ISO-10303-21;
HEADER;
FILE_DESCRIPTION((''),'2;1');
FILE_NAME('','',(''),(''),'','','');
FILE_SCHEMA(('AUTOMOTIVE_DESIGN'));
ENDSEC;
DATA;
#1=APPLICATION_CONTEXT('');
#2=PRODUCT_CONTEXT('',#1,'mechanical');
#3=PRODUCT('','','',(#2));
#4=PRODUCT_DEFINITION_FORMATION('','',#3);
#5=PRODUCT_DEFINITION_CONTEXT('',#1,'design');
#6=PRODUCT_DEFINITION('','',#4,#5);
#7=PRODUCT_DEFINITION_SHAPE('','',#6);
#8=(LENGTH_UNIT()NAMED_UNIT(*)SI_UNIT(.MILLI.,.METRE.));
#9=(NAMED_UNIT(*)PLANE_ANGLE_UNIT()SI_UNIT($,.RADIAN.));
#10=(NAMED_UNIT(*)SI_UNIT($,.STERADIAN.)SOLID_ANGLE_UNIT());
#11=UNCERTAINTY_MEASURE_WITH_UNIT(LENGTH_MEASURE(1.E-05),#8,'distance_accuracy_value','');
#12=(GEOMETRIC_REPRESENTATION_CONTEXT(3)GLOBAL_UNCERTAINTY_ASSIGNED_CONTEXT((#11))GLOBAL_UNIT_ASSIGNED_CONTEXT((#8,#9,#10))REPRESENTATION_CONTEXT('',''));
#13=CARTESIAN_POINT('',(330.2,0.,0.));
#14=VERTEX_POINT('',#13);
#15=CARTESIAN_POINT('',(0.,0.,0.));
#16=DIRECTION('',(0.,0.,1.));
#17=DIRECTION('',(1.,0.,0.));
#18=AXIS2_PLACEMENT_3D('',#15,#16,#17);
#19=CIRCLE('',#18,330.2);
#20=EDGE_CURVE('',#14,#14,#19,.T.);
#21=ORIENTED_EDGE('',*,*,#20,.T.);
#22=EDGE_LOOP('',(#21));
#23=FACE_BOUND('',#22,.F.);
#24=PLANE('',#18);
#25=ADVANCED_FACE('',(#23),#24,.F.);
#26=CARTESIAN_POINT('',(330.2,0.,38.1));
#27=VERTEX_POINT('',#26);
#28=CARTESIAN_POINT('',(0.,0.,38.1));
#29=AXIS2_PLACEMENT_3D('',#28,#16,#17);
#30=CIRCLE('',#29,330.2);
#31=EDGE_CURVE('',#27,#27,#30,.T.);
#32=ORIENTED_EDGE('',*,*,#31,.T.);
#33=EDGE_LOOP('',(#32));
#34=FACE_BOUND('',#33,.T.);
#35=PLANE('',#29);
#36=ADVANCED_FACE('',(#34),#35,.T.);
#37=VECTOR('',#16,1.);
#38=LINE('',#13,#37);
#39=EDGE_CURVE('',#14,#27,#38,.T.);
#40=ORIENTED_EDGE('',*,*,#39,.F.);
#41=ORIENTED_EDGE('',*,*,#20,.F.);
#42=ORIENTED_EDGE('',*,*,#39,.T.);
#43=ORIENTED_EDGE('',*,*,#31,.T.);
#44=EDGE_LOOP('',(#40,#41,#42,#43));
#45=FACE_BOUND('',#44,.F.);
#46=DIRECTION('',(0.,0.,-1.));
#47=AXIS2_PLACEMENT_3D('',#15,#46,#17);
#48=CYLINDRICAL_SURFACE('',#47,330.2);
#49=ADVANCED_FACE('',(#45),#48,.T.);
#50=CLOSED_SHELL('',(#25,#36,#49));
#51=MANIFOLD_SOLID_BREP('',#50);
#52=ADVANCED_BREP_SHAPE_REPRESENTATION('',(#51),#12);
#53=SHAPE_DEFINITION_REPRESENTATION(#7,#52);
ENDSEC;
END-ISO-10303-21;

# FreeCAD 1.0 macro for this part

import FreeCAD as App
import Part
import Sketcher
Q = App.Units.Quantity

doc = App.newDocument("Part")
body = doc.addObject("PartDesign::Body", "Body")

# Sketch on XY plane
sketch1 = body.newObject("Sketcher::SketchObject", "Sketch")
sketch1.AttachmentSupport = (doc.getObject("XY_Plane"), [""])
sketch1.MapMode = "FlatFace"
sketch1.addGeometry(Part.Circle(App.Vector(0, 0, 0), App.Vector(0, 0, 1), 330), False)
sketch1.addConstraint(Sketcher.Constraint("Coincident", 0, 3, -1, 1))
sketch1.addConstraint(Sketcher.Constraint("Diameter", 0, Q("26 in")))
pad1 = body.newObject("PartDesign::Pad", "Pad")
pad1.Profile = sketch1
pad1.Length = Q("1.5 in")

doc.recompute()
